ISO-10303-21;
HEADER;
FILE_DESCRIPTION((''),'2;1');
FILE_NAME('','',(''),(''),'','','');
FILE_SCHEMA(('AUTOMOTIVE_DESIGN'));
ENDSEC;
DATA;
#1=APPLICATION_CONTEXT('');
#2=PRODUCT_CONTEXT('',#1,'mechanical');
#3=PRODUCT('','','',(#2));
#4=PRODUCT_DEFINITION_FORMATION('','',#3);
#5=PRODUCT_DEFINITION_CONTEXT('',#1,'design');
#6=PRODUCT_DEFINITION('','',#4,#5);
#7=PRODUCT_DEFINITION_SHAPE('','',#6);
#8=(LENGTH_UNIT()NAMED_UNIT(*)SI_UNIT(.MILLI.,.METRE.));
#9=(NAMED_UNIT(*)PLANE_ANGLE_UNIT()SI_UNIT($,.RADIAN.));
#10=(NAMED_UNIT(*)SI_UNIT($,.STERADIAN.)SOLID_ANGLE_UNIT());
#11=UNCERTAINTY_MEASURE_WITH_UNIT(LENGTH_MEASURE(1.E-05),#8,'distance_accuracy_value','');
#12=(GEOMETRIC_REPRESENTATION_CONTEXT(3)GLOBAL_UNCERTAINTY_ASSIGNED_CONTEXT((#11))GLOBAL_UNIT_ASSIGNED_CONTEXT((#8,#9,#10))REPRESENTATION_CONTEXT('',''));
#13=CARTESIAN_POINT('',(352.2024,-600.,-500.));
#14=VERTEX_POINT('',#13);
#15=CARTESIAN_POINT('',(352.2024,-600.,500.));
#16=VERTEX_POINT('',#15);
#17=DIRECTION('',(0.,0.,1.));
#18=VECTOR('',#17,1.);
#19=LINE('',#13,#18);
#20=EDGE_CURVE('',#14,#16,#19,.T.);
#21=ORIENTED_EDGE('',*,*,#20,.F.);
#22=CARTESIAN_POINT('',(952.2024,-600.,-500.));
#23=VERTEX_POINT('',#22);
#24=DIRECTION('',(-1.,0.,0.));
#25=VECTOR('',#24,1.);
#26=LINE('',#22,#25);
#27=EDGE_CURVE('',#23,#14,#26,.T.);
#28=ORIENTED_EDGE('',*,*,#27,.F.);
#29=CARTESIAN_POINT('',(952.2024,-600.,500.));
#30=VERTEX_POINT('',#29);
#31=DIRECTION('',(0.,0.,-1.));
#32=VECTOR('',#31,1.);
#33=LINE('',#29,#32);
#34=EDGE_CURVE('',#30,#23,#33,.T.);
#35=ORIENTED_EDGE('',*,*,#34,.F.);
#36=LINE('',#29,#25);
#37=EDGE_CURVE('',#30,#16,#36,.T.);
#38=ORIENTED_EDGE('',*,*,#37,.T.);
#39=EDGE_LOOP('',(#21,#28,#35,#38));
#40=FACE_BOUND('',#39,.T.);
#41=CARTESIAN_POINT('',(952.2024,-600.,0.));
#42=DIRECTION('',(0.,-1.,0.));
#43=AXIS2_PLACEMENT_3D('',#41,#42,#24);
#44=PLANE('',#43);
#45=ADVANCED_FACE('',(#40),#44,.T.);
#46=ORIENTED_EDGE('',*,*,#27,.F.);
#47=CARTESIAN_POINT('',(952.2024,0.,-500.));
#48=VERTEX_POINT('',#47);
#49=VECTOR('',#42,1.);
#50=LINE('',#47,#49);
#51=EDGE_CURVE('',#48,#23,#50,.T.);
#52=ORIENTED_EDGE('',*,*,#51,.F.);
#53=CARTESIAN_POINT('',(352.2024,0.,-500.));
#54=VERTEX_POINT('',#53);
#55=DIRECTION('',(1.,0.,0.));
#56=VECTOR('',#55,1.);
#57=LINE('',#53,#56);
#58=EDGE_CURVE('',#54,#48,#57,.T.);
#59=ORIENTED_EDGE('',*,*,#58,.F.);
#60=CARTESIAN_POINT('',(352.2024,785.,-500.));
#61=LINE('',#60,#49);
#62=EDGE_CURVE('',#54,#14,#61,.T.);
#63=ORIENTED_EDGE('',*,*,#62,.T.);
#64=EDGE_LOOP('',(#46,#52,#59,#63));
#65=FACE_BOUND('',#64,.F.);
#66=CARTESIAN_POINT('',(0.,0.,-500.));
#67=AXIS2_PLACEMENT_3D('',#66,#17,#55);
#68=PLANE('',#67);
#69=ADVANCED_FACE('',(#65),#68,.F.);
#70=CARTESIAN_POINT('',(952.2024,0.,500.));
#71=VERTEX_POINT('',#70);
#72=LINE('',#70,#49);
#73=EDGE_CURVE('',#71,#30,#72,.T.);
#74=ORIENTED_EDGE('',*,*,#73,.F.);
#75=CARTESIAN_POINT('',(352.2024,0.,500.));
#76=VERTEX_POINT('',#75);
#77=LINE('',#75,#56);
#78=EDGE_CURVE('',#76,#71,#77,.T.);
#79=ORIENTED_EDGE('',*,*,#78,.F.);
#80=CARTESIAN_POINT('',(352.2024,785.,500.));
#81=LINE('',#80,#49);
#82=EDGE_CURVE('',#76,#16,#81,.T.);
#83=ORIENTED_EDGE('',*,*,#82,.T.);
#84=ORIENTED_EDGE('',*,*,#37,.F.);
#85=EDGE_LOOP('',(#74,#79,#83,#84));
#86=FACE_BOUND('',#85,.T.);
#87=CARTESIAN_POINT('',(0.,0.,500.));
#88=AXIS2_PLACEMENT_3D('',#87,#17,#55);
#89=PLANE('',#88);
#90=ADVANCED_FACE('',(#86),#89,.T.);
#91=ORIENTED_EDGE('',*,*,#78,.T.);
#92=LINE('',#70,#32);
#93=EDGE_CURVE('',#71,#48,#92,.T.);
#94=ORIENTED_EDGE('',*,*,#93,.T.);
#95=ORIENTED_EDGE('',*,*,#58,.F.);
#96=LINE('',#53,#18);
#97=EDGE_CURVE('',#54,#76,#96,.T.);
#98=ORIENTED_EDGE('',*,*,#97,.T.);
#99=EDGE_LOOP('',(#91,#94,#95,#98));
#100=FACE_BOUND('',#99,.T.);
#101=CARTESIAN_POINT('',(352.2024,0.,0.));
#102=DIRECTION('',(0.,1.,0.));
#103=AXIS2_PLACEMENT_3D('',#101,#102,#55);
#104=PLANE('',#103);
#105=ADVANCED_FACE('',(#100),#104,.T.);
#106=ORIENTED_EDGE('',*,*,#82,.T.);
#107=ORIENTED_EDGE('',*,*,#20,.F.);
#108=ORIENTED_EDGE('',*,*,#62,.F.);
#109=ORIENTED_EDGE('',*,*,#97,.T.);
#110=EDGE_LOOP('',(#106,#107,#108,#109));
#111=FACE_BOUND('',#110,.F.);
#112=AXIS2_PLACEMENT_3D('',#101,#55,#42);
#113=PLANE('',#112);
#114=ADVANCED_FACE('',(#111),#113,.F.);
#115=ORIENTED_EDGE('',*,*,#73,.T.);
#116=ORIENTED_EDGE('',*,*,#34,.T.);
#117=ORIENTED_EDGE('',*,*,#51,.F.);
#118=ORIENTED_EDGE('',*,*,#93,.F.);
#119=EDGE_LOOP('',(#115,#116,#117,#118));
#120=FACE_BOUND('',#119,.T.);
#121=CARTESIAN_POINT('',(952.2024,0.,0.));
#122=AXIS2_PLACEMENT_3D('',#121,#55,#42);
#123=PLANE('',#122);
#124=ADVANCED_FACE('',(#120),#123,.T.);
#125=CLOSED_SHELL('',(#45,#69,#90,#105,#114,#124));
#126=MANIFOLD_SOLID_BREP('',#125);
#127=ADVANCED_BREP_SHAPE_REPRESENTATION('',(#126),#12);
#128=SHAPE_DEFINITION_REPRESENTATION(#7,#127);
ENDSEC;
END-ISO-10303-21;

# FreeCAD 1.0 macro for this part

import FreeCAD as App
import Part
import Sketcher
Q = App.Units.Quantity

doc = App.newDocument("Part")
params = doc.addObject("Spreadsheet::Sheet", "Params")
for row, (alias, value) in enumerate([
    ("sketch1_width", "600 mm"),
    ("pad1_length", "1000 mm"),
], start=1):
    params.set(f"A{row}", alias)
    params.set(f"B{row}", "=" + value)
    params.setAlias(f"B{row}", alias)

body = doc.addObject("PartDesign::Body", "Body")

# Sketch on XY plane
sketch1 = body.newObject("Sketcher::SketchObject", "Sketch")
sketch1.AttachmentSupport = (doc.getObject("XY_Plane"), [""])
sketch1.MapMode = "FlatFace"
sketch1.addGeometry(Part.LineSegment(App.Vector(952, 0, 0), App.Vector(352, 0, 0)), False)
sketch1.addGeometry(Part.LineSegment(App.Vector(352, 0, 0), App.Vector(352, -600, 0)), False)
sketch1.addGeometry(Part.LineSegment(App.Vector(352, -600, 0), App.Vector(952, -600, 0)), False)
sketch1.addGeometry(Part.LineSegment(App.Vector(952, -600, 0), App.Vector(952, 0, 0)), False)
sketch1.addConstraint(Sketcher.Constraint("Coincident", 0, 2, 1, 1))
sketch1.addConstraint(Sketcher.Constraint("Coincident", 1, 2, 2, 1))
sketch1.addConstraint(Sketcher.Constraint("Coincident", 2, 2, 3, 1))
sketch1.addConstraint(Sketcher.Constraint("Coincident", 3, 2, 0, 1))
sketch1.addConstraint(Sketcher.Constraint("Horizontal", 0))
sketch1.addConstraint(Sketcher.Constraint("Vertical", 1))
sketch1.addConstraint(Sketcher.Constraint("Horizontal", 2))
sketch1.addConstraint(Sketcher.Constraint("Vertical", 3))
sketch1.addConstraint(Sketcher.Constraint("PointOnObject", 0, 2, -1))
sketch1.addConstraint(Sketcher.Constraint("Equal", 2, 1))
sketch1.addConstraint(Sketcher.Constraint("DistanceX", 0, 2, 0, 1, Q("600 mm")))
sketch1.addConstraint(Sketcher.Constraint("DistanceX", -1, 1, 0, 2, Q("352.2024 mm")))
sketch1.setExpression("Constraints[10]", "Params.sketch1_width")
pad1 = body.newObject("PartDesign::Pad", "Pad")
pad1.Profile = sketch1
pad1.setExpression("Length", "Params.pad1_length")
pad1.Midplane = True

doc.recompute()
